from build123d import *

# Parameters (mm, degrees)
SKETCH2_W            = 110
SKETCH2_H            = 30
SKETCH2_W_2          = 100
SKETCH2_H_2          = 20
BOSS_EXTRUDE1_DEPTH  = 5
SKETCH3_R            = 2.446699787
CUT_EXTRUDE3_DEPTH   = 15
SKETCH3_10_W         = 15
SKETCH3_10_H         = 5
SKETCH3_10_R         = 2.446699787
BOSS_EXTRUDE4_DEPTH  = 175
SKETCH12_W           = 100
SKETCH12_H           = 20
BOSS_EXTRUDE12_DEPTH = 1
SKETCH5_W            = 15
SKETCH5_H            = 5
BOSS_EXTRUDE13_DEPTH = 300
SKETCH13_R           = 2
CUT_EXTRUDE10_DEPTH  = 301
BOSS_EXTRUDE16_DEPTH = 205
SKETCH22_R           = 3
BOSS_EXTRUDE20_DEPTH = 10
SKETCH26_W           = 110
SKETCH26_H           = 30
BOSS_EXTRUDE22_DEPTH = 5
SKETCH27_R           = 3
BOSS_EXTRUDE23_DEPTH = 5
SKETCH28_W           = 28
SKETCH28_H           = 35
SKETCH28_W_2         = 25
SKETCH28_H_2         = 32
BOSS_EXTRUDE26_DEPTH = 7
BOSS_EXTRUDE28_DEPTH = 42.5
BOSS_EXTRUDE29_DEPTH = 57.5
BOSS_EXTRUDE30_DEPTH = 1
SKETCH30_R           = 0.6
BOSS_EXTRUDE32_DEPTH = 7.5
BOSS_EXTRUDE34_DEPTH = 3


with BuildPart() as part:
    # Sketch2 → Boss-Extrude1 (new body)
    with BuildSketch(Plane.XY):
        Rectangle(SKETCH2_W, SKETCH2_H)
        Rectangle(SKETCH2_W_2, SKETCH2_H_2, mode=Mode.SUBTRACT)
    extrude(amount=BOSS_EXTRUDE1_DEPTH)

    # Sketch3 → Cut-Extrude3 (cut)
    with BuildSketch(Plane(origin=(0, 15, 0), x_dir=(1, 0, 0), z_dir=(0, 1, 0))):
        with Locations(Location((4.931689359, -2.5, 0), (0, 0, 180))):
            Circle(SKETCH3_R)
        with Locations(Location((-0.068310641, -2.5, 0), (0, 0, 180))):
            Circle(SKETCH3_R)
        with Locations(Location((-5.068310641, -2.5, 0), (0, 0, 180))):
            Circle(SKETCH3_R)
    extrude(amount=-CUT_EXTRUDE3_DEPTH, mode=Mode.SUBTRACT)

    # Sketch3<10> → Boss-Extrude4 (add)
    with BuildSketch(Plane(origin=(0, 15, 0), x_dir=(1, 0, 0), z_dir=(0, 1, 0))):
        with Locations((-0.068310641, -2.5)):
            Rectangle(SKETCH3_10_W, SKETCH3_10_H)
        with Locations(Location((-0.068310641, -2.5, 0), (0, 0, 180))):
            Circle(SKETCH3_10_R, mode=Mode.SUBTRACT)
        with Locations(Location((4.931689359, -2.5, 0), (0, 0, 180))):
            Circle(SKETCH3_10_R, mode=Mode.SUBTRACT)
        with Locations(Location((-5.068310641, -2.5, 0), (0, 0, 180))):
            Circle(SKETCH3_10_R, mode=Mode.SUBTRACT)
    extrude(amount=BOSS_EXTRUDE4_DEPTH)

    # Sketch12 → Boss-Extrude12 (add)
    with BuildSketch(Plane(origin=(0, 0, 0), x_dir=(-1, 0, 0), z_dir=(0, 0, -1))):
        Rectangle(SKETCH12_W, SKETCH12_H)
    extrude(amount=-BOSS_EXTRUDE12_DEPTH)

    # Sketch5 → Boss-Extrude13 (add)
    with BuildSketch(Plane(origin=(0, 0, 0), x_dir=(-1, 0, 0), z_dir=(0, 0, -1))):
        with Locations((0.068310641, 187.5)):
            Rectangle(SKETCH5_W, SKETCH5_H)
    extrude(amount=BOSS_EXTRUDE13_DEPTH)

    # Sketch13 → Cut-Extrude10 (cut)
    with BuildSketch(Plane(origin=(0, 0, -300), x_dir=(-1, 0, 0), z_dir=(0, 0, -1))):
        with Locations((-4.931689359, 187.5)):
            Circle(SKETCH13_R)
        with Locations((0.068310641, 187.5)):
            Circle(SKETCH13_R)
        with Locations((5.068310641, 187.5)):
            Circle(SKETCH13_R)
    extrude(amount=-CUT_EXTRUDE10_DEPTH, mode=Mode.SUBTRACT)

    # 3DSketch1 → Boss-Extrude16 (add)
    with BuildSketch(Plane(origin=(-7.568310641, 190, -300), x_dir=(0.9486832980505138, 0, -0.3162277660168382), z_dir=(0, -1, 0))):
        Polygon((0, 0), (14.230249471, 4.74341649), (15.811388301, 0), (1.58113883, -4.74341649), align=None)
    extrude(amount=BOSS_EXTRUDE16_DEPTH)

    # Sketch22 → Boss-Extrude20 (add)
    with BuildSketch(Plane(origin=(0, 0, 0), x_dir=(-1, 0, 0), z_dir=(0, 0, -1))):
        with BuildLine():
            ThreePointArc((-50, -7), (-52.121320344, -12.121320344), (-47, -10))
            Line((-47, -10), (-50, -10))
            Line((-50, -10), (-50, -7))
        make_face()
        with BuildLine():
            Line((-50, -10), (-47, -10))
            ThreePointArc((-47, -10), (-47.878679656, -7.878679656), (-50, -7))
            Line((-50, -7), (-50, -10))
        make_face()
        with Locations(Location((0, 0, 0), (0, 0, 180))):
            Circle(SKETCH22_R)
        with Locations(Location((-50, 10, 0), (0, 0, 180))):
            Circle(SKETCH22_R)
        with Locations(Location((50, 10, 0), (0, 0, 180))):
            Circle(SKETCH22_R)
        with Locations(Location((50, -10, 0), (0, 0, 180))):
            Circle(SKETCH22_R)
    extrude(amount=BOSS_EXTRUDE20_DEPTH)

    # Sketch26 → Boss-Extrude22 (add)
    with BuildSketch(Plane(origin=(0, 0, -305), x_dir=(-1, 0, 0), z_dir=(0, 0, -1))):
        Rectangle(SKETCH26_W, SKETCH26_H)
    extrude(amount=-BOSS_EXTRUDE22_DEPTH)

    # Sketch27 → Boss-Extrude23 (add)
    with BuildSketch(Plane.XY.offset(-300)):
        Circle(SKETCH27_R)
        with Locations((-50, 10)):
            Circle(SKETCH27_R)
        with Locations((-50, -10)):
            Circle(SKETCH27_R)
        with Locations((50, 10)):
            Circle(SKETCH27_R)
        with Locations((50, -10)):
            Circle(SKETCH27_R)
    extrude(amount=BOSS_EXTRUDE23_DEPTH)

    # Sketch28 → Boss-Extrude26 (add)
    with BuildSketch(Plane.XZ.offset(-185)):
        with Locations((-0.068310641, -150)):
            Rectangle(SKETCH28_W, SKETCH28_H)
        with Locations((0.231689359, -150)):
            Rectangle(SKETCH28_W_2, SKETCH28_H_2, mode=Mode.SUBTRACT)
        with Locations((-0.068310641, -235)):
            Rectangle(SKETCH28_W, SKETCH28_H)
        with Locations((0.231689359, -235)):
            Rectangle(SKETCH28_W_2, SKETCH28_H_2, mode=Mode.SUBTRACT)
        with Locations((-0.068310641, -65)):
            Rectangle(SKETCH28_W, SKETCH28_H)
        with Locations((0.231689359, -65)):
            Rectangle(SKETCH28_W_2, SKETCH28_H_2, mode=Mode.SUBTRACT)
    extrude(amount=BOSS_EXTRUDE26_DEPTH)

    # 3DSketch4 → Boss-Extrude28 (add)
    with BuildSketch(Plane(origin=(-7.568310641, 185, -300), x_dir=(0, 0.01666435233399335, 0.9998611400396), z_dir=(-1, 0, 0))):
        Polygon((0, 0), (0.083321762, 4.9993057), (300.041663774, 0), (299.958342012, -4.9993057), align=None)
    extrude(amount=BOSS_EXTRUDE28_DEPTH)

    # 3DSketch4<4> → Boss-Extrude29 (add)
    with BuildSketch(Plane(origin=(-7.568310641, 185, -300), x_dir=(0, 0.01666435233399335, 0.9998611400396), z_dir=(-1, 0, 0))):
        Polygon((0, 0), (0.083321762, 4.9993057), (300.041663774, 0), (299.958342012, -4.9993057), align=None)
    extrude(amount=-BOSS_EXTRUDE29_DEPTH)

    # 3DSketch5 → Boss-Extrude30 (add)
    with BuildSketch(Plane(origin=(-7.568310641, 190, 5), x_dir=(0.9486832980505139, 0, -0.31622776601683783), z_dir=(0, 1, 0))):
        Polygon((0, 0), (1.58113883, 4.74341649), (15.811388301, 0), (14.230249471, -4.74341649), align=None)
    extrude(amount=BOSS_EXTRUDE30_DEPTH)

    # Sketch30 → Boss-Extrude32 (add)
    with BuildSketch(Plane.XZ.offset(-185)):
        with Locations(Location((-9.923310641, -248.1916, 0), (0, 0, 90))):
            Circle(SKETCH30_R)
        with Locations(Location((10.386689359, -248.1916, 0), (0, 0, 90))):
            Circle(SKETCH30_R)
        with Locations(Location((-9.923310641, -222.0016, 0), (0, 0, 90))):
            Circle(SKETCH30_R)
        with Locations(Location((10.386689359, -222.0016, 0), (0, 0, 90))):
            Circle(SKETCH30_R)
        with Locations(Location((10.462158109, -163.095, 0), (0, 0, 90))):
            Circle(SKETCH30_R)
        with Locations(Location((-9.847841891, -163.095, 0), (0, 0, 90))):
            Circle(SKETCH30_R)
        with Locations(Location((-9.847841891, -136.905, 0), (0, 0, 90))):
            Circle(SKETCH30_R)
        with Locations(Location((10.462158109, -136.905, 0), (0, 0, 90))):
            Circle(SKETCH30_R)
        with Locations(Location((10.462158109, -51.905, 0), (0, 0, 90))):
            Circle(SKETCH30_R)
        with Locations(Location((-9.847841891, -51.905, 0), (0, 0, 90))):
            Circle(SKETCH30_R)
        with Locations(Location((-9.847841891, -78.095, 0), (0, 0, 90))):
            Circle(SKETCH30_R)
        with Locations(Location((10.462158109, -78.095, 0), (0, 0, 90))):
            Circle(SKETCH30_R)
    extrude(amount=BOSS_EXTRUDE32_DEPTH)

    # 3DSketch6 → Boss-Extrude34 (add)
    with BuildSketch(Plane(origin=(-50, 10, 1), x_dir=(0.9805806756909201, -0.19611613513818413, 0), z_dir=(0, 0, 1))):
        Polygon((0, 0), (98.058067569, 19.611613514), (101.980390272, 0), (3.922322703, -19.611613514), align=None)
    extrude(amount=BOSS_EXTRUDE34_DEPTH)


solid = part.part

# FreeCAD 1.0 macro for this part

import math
import FreeCAD as App
import Part
import Sketcher


def add_polygon(sketch, points):
    """Adds a closed chain of lines whose ends are joined by coincident constraints."""
    first, n = sketch.GeometryCount, len(points)
    for a, b in zip(points, points[1:] + points[:1]):
        sketch.addGeometry(Part.LineSegment(App.Vector(*a, 0), App.Vector(*b, 0)), False)
    for i in range(n):
        sketch.addConstraint(Sketcher.Constraint("Coincident", first + i, 2, first + (i + 1) % n, 1))

doc = App.newDocument("Part")
body = doc.addObject("PartDesign::Body", "Body")

sketch1 = body.newObject("Sketcher::SketchObject", "Sketch")
sketch1.AttachmentSupport = (doc.getObject("XY_Plane"), [""])
sketch1.MapMode = "FlatFace"
add_polygon(sketch1, [(-55, 15), (-55, -15), (55, -15), (55, 15)])
add_polygon(sketch1, [(50, -10), (-50, -10), (-50, 10), (50, 10)])
sketch1.addConstraint(Sketcher.Constraint("Vertical", 0))
sketch1.addConstraint(Sketcher.Constraint("Horizontal", 1))
sketch1.addConstraint(Sketcher.Constraint("Vertical", 2))
sketch1.addConstraint(Sketcher.Constraint("Horizontal", 3))
sketch1.addConstraint(Sketcher.Constraint("Horizontal", 4))
sketch1.addConstraint(Sketcher.Constraint("Vertical", 5))
sketch1.addConstraint(Sketcher.Constraint("Horizontal", 6))
sketch1.addConstraint(Sketcher.Constraint("Vertical", 7))
sketch1.addConstraint(Sketcher.Constraint("Symmetric", 0, 2, 2, 2, -1, 1))
sketch1.addConstraint(Sketcher.Constraint("Symmetric", 4, 2, 6, 2, -1, 1))
sketch1.addConstraint(Sketcher.Constraint("DistanceX", 1, 1, 1, 2, 110.0))
sketch1.addConstraint(Sketcher.Constraint("DistanceX", 4, 2, 4, 1, 100.0))
sketch1.addConstraint(Sketcher.Constraint("DistanceY", 0, 2, 0, 1, 30.0))
sketch1.addConstraint(Sketcher.Constraint("DistanceY", 5, 1, 5, 2, 20.0))
pad1 = body.newObject("PartDesign::Pad", "Pad")
pad1.Profile = sketch1
pad1.Length = 5

sketch2 = body.newObject("Sketcher::SketchObject", "Sketch001")
sketch2.AttachmentSupport = (doc.getObject("XZ_Plane"), [""])
sketch2.MapMode = "FlatFace"
sketch2.AttachmentOffset = App.Placement(App.Vector(0, 0, -15), App.Rotation())
sketch2.addGeometry(Part.Circle(App.Vector(4.9, 2.5, 0), App.Vector(0, 0, 1), 2.4), False)
sketch2.addGeometry(Part.Circle(App.Vector(-0.1, 2.5, 0), App.Vector(0, 0, 1), 2.4), False)
sketch2.addGeometry(Part.Circle(App.Vector(-5.1, 2.5, 0), App.Vector(0, 0, 1), 2.4), False)
sketch2.addConstraint(Sketcher.Constraint("Equal", 0, 1))
sketch2.addConstraint(Sketcher.Constraint("Equal", 1, 2))
sketch2.addConstraint(Sketcher.Constraint("Horizontal", 0, 3, 1, 3))
sketch2.addConstraint(Sketcher.Constraint("Horizontal", 1, 3, 2, 3))
sketch2.addConstraint(Sketcher.Constraint("DistanceX", 1, 3, 0, 3, 5.0))
sketch2.addConstraint(Sketcher.Constraint("DistanceX", 2, 3, 1, 3, 5.0))
sketch2.addConstraint(Sketcher.Constraint("Diameter", 0, 4.8934))
sketch2.addConstraint(Sketcher.Constraint("DistanceY", -1, 1, 0, 3, 2.5))
sketch2.addConstraint(Sketcher.Constraint("DistanceX", -1, 1, 0, 3, 4.931689))
pocket1 = body.newObject("PartDesign::Pocket", "Pocket")
pocket1.Profile = sketch2
pocket1.Length = 15
pocket1.Reversed = True

sketch3 = body.newObject("Sketcher::SketchObject", "Sketch002")
sketch3.AttachmentSupport = (doc.getObject("XZ_Plane"), [""])
sketch3.MapMode = "FlatFace"
sketch3.AttachmentOffset = App.Placement(App.Vector(0, 0, -15), App.Rotation())
add_polygon(sketch3, [(-7.6, 0), (-7.6, 5), (7.4, 5), (7.4, 0)])
sketch3.addGeometry(Part.Circle(App.Vector(-5.1, 2.5, 0), App.Vector(0, 0, 1), 2.4), False)
sketch3.addGeometry(Part.Circle(App.Vector(-0.1, 2.5, 0), App.Vector(0, 0, 1), 2.4), False)
sketch3.addGeometry(Part.Circle(App.Vector(4.9, 2.5, 0), App.Vector(0, 0, 1), 2.4), False)
sketch3.addConstraint(Sketcher.Constraint("Vertical", 0))
sketch3.addConstraint(Sketcher.Constraint("Horizontal", 1))
sketch3.addConstraint(Sketcher.Constraint("Vertical", 2))
sketch3.addConstraint(Sketcher.Constraint("Horizontal", 3))
sketch3.addConstraint(Sketcher.Constraint("Equal", 4, 5))
sketch3.addConstraint(Sketcher.Constraint("Equal", 5, 6))
sketch3.addConstraint(Sketcher.Constraint("PointOnObject", 2, 2, -1))
sketch3.addConstraint(Sketcher.Constraint("Horizontal", 4, 3, 5, 3))
sketch3.addConstraint(Sketcher.Constraint("Horizontal", 5, 3, 6, 3))
sketch3.addConstraint(Sketcher.Constraint("DistanceX", 1, 1, 1, 2, 15.0))
sketch3.addConstraint(Sketcher.Constraint("DistanceY", 0, 1, 0, 2, 5.0))
sketch3.addConstraint(Sketcher.Constraint("DistanceX", 4, 3, 5, 3, 5.0))
sketch3.addConstraint(Sketcher.Constraint("DistanceX", 5, 3, 6, 3, 5.0))
sketch3.addConstraint(Sketcher.Constraint("Diameter", 4, 4.8934))
sketch3.addConstraint(Sketcher.Constraint("DistanceY", -1, 1, 4, 3, 2.5))
sketch3.addConstraint(Sketcher.Constraint("DistanceX", 0, 2, 4, 3, 2.5))
sketch3.addConstraint(Sketcher.Constraint("DistanceX", 4, 3, -1, 1, 5.068311))
pad2 = body.newObject("PartDesign::Pad", "Pad001")
pad2.Profile = sketch3
pad2.Length = 175
pad2.Reversed = True

sketch4 = body.newObject("Sketcher::SketchObject", "Sketch003")
sketch4.AttachmentSupport = (doc.getObject("XY_Plane"), [""])
sketch4.MapMode = "FlatFace"
add_polygon(sketch4, [(50, 10), (50, -10), (-50, -10), (-50, 10)])
sketch4.addConstraint(Sketcher.Constraint("Vertical", 0))
sketch4.addConstraint(Sketcher.Constraint("Horizontal", 1))
sketch4.addConstraint(Sketcher.Constraint("Vertical", 2))
sketch4.addConstraint(Sketcher.Constraint("Horizontal", 3))
sketch4.addConstraint(Sketcher.Constraint("Symmetric", 0, 2, 2, 2, -1, 1))
sketch4.addConstraint(Sketcher.Constraint("DistanceX", 1, 2, 1, 1, 100.0))
sketch4.addConstraint(Sketcher.Constraint("DistanceY", 0, 2, 0, 1, 20.0))
pad3 = body.newObject("PartDesign::Pad", "Pad002")
pad3.Profile = sketch4
pad3.Length = 1

sketch5 = body.newObject("Sketcher::SketchObject", "Sketch004")
sketch5.AttachmentSupport = (doc.getObject("XY_Plane"), [""])
sketch5.MapMode = "FlatFace"
add_polygon(sketch5, [(7, 190), (7, 185), (-8, 185), (-8, 190)])
sketch5.addConstraint(Sketcher.Constraint("Vertical", 0))
sketch5.addConstraint(Sketcher.Constraint("Horizontal", 1))
sketch5.addConstraint(Sketcher.Constraint("Vertical", 2))
sketch5.addConstraint(Sketcher.Constraint("Horizontal", 3))
sketch5.addConstraint(Sketcher.Constraint("DistanceX", 1, 2, 1, 1, 15.0))
sketch5.addConstraint(Sketcher.Constraint("DistanceY", 0, 2, 0, 1, 5.0))
sketch5.addConstraint(Sketcher.Constraint("DistanceY", -1, 1, 0, 2, 185.0))
sketch5.addConstraint(Sketcher.Constraint("DistanceX", -1, 1, 0, 2, 7.431689))
pad4 = body.newObject("PartDesign::Pad", "Pad003")
pad4.Profile = sketch5
pad4.Length = 300
pad4.Reversed = True

sketch6 = body.newObject("Sketcher::SketchObject", "Sketch005")
sketch6.AttachmentSupport = (doc.getObject("XY_Plane"), [""])
sketch6.MapMode = "FlatFace"
sketch6.AttachmentOffset = App.Placement(App.Vector(0, 0, -300), App.Rotation())
sketch6.addGeometry(Part.Circle(App.Vector(4.9, 187.5, 0), App.Vector(0, 0, 1), 2), False)
sketch6.addGeometry(Part.Circle(App.Vector(-0.1, 187.5, 0), App.Vector(0, 0, 1), 2), False)
sketch6.addGeometry(Part.Circle(App.Vector(-5.1, 187.5, 0), App.Vector(0, 0, 1), 2), False)
sketch6.addConstraint(Sketcher.Constraint("Equal", 0, 1))
sketch6.addConstraint(Sketcher.Constraint("Equal", 1, 2))
sketch6.addConstraint(Sketcher.Constraint("Horizontal", 0, 3, 1, 3))
sketch6.addConstraint(Sketcher.Constraint("Horizontal", 1, 3, 2, 3))
sketch6.addConstraint(Sketcher.Constraint("Diameter", 0, 4.0))
sketch6.addConstraint(Sketcher.Constraint("DistanceX", 1, 3, 0, 3, 5.0))
sketch6.addConstraint(Sketcher.Constraint("DistanceX", 2, 3, 1, 3, 5.0))
sketch6.addConstraint(Sketcher.Constraint("DistanceY", -1, 1, 0, 3, 187.5))
sketch6.addConstraint(Sketcher.Constraint("DistanceX", -1, 1, 0, 3, 4.931689))
pocket2 = body.newObject("PartDesign::Pocket", "Pocket001")
pocket2.Profile = sketch6
pocket2.Length = 301
pocket2.Reversed = True

sketch7 = body.newObject("Sketcher::SketchObject", "Sketch006")
sketch7.AttachmentSupport = (doc.getObject("XZ_Plane"), [""])
sketch7.MapMode = "FlatFace"
sketch7.AttachmentOffset = App.Placement(App.Vector(0, 0, -190), App.Rotation())
add_polygon(sketch7, [(7.4, -300), (-7.6, -300), (-7.6, -305), (7.4, -305)])
sketch7.addConstraint(Sketcher.Constraint("Horizontal", 0))
sketch7.addConstraint(Sketcher.Constraint("Vertical", 1))
sketch7.addConstraint(Sketcher.Constraint("Horizontal", 2))
sketch7.addConstraint(Sketcher.Constraint("Vertical", 3))
sketch7.addConstraint(Sketcher.Constraint("DistanceX", 0, 2, 0, 1, 15.0))
sketch7.addConstraint(Sketcher.Constraint("DistanceY", 1, 2, 1, 1, 5.0))
sketch7.addConstraint(Sketcher.Constraint("DistanceY", 0, 2, -1, 1, 300.0))
sketch7.addConstraint(Sketcher.Constraint("DistanceX", 0, 2, -1, 1, 7.568311))
pad5 = body.newObject("PartDesign::Pad", "Pad004")
pad5.Profile = sketch7
pad5.Length = 205

sketch8 = body.newObject("Sketcher::SketchObject", "Sketch007")
sketch8.AttachmentSupport = (doc.getObject("XY_Plane"), [""])
sketch8.MapMode = "FlatFace"
sketch8.addGeometry(Part.ArcOfCircle(Part.Circle(App.Vector(50, -10, 0), App.Vector(0, 0, 1), 3), math.radians(180), math.radians(450)), False)
sketch8.addGeometry(Part.ArcOfCircle(Part.Circle(App.Vector(50, -10, 0), App.Vector(0, 0, 1), 3), math.radians(90), math.radians(180)), False)
sketch8.addGeometry(Part.Circle(App.Vector(0, 0, 0), App.Vector(0, 0, 1), 3), False)
sketch8.addGeometry(Part.Circle(App.Vector(50, 10, 0), App.Vector(0, 0, 1), 3), False)
sketch8.addGeometry(Part.Circle(App.Vector(-50, 10, 0), App.Vector(0, 0, 1), 3), False)
sketch8.addGeometry(Part.Circle(App.Vector(-50, -10, 0), App.Vector(0, 0, 1), 3), False)
sketch8.addConstraint(Sketcher.Constraint("Tangent", 0, 1, 1, 2))
sketch8.addConstraint(Sketcher.Constraint("Coincident", 1, 1, 0, 2))
sketch8.addConstraint(Sketcher.Constraint("Coincident", 2, 3, -1, 1))
sketch8.addConstraint(Sketcher.Constraint("Equal", 1, 2))
sketch8.addConstraint(Sketcher.Constraint("Equal", 2, 3))
sketch8.addConstraint(Sketcher.Constraint("Equal", 3, 4))
sketch8.addConstraint(Sketcher.Constraint("Equal", 4, 5))
sketch8.addConstraint(Sketcher.Constraint("Symmetric", 0, 3, 4, 3, -1, 1))
sketch8.addConstraint(Sketcher.Constraint("Symmetric", 3, 3, 5, 3, -1, 1))
sketch8.addConstraint(Sketcher.Constraint("Symmetric", 3, 3, 4, 3, -2))
sketch8.addConstraint(Sketcher.Constraint("Horizontal", 5, 3, 0, 1))
sketch8.addConstraint(Sketcher.Constraint("Vertical", 3, 3, 1, 1))
sketch8.addConstraint(Sketcher.Constraint("Diameter", 2, 6.0))
sketch8.addConstraint(Sketcher.Constraint("DistanceX", -1, 1, 0, 3, 50.0))
sketch8.addConstraint(Sketcher.Constraint("DistanceY", 0, 3, -1, 1, 10.0))
pad6 = body.newObject("PartDesign::Pad", "Pad005")
pad6.Profile = sketch8
pad6.Length = 10
pad6.Reversed = True

sketch9 = body.newObject("Sketcher::SketchObject", "Sketch008")
sketch9.AttachmentSupport = (doc.getObject("XY_Plane"), [""])
sketch9.MapMode = "FlatFace"
sketch9.AttachmentOffset = App.Placement(App.Vector(0, 0, -305), App.Rotation())
add_polygon(sketch9, [(55, 15), (55, -15), (-55, -15), (-55, 15)])
sketch9.addConstraint(Sketcher.Constraint("Vertical", 0))
sketch9.addConstraint(Sketcher.Constraint("Horizontal", 1))
sketch9.addConstraint(Sketcher.Constraint("Vertical", 2))
sketch9.addConstraint(Sketcher.Constraint("Horizontal", 3))
sketch9.addConstraint(Sketcher.Constraint("Symmetric", 0, 2, 2, 2, -1, 1))
sketch9.addConstraint(Sketcher.Constraint("DistanceX", 1, 2, 1, 1, 110.0))
sketch9.addConstraint(Sketcher.Constraint("DistanceY", 0, 2, 0, 1, 30.0))
pad7 = body.newObject("PartDesign::Pad", "Pad006")
pad7.Profile = sketch9
pad7.Length = 5

sketch10 = body.newObject("Sketcher::SketchObject", "Sketch009")
sketch10.AttachmentSupport = (doc.getObject("XY_Plane"), [""])
sketch10.MapMode = "FlatFace"
sketch10.AttachmentOffset = App.Placement(App.Vector(0, 0, -300), App.Rotation())
sketch10.addGeometry(Part.Circle(App.Vector(0, 0, 0), App.Vector(0, 0, 1), 3), False)
sketch10.addGeometry(Part.Circle(App.Vector(-50, 10, 0), App.Vector(0, 0, 1), 3), False)
sketch10.addGeometry(Part.Circle(App.Vector(-50, -10, 0), App.Vector(0, 0, 1), 3), False)
sketch10.addGeometry(Part.Circle(App.Vector(50, 10, 0), App.Vector(0, 0, 1), 3), False)
sketch10.addGeometry(Part.Circle(App.Vector(50, -10, 0), App.Vector(0, 0, 1), 3), False)
sketch10.addConstraint(Sketcher.Constraint("Coincident", 0, 3, -1, 1))
sketch10.addConstraint(Sketcher.Constraint("Equal", 0, 1))
sketch10.addConstraint(Sketcher.Constraint("Equal", 1, 2))
sketch10.addConstraint(Sketcher.Constraint("Equal", 2, 3))
sketch10.addConstraint(Sketcher.Constraint("Equal", 3, 4))
sketch10.addConstraint(Sketcher.Constraint("Symmetric", 2, 3, 3, 3, -1, 1))
sketch10.addConstraint(Sketcher.Constraint("Symmetric", 1, 3, 4, 3, -1, 1))
sketch10.addConstraint(Sketcher.Constraint("Symmetric", 1, 3, 3, 3, -2))
sketch10.addConstraint(Sketcher.Constraint("Diameter", 0, 6.0))
sketch10.addConstraint(Sketcher.Constraint("DistanceX", 1, 3, -1, 1, 50.0))
sketch10.addConstraint(Sketcher.Constraint("DistanceY", -1, 1, 1, 3, 10.0))
pad8 = body.newObject("PartDesign::Pad", "Pad007")
pad8.Profile = sketch10
pad8.Length = 5

sketch11 = body.newObject("Sketcher::SketchObject", "Sketch010")
sketch11.AttachmentSupport = (doc.getObject("XZ_Plane"), [""])
sketch11.MapMode = "FlatFace"
sketch11.AttachmentOffset = App.Placement(App.Vector(0, 0, -185), App.Rotation())
add_polygon(sketch11, [(-14, -132), (-14, -168), (14, -168), (14, -132)])
add_polygon(sketch11, [(13, -166), (-12, -166), (-12, -134), (13, -134)])
add_polygon(sketch11, [(-14, -218), (-14, -252), (14, -252), (14, -218)])
add_polygon(sketch11, [(13, -251), (-12, -251), (-12, -219), (13, -219)])
add_polygon(sketch11, [(-14, -48), (-14, -82), (14, -82), (14, -48)])
add_polygon(sketch11, [(13, -81), (-12, -81), (-12, -49), (13, -49)])
sketch11.addConstraint(Sketcher.Constraint("Vertical", 0))
sketch11.addConstraint(Sketcher.Constraint("Horizontal", 1))
sketch11.addConstraint(Sketcher.Constraint("Vertical", 2))
sketch11.addConstraint(Sketcher.Constraint("Horizontal", 3))
sketch11.addConstraint(Sketcher.Constraint("Horizontal", 4))
sketch11.addConstraint(Sketcher.Constraint("Vertical", 5))
sketch11.addConstraint(Sketcher.Constraint("Horizontal", 6))
sketch11.addConstraint(Sketcher.Constraint("Vertical", 7))
sketch11.addConstraint(Sketcher.Constraint("Vertical", 8))
sketch11.addConstraint(Sketcher.Constraint("Horizontal", 9))
sketch11.addConstraint(Sketcher.Constraint("Vertical", 10))
sketch11.addConstraint(Sketcher.Constraint("Horizontal", 11))
sketch11.addConstraint(Sketcher.Constraint("Horizontal", 12))
sketch11.addConstraint(Sketcher.Constraint("Vertical", 13))
sketch11.addConstraint(Sketcher.Constraint("Horizontal", 14))
sketch11.addConstraint(Sketcher.Constraint("Vertical", 15))
sketch11.addConstraint(Sketcher.Constraint("Vertical", 16))
sketch11.addConstraint(Sketcher.Constraint("Horizontal", 17))
sketch11.addConstraint(Sketcher.Constraint("Vertical", 18))
sketch11.addConstraint(Sketcher.Constraint("Horizontal", 19))
sketch11.addConstraint(Sketcher.Constraint("Horizontal", 20))
sketch11.addConstraint(Sketcher.Constraint("Vertical", 21))
sketch11.addConstraint(Sketcher.Constraint("Horizontal", 22))
sketch11.addConstraint(Sketcher.Constraint("Vertical", 23))
sketch11.addConstraint(Sketcher.Constraint("Vertical", 3, 2, 8, 2))
sketch11.addConstraint(Sketcher.Constraint("Vertical", 2, 2, 9, 2))
sketch11.addConstraint(Sketcher.Constraint("Vertical", 5, 2, 12, 2))
sketch11.addConstraint(Sketcher.Constraint("Vertical", 7, 2, 14, 2))
sketch11.addConstraint(Sketcher.Constraint("Vertical", 11, 2, 16, 2))
sketch11.addConstraint(Sketcher.Constraint("Vertical", 10, 2, 17, 2))
sketch11.addConstraint(Sketcher.Constraint("Vertical", 13, 2, 20, 2))
sketch11.addConstraint(Sketcher.Constraint("Vertical", 15, 2, 22, 2))
sketch11.addConstraint(Sketcher.Constraint("Equal", 2, 8))
sketch11.addConstraint(Sketcher.Constraint("Equal", 7, 13))
sketch11.addConstraint(Sketcher.Constraint("Equal", 10, 16))
sketch11.addConstraint(Sketcher.Constraint("Equal", 15, 21))
sketch11.addConstraint(Sketcher.Constraint("DistanceX", 1, 1, 1, 2, 28.0))
sketch11.addConstraint(Sketcher.Constraint("DistanceX", 4, 2, 4, 1, 25.0))
sketch11.addConstraint(Sketcher.Constraint("DistanceY", 0, 2, 0, 1, 35.0))
sketch11.addConstraint(Sketcher.Constraint("DistanceY", 5, 1, 5, 2, 32.0))
sketch11.addConstraint(Sketcher.Constraint("DistanceY", 4, 2, -1, 1, 166.0))
sketch11.addConstraint(Sketcher.Constraint("DistanceY", 12, 2, -1, 1, 251.0))
sketch11.addConstraint(Sketcher.Constraint("DistanceY", 20, 2, -1, 1, 81.0))
sketch11.addConstraint(Sketcher.Constraint("DistanceY", 8, 2, 0, 2, 85.0))
sketch11.addConstraint(Sketcher.Constraint("DistanceY", 3, 2, 16, 2, 50.0))
sketch11.addConstraint(Sketcher.Constraint("DistanceY", 0, 2, -1, 1, 167.5))
sketch11.addConstraint(Sketcher.Constraint("DistanceX", 0, 2, 4, 2, 1.8))
sketch11.addConstraint(Sketcher.Constraint("DistanceX", 0, 2, -1, 1, 14.068311))
pad9 = body.newObject("PartDesign::Pad", "Pad008")
pad9.Profile = sketch11
pad9.Length = 7

sketch12 = body.newObject("Sketcher::SketchObject", "Sketch011")
sketch12.AttachmentSupport = (doc.getObject("YZ_Plane"), [""])
sketch12.MapMode = "FlatFace"
sketch12.AttachmentOffset = App.Placement(App.Vector(0, 0, -7.568311), App.Rotation())
add_polygon(sketch12, [(190, -300), (185, -300), (185, 0), (190, 0)])
sketch12.addConstraint(Sketcher.Constraint("Horizontal", 0))
sketch12.addConstraint(Sketcher.Constraint("Vertical", 1))
sketch12.addConstraint(Sketcher.Constraint("Horizontal", 2))
sketch12.addConstraint(Sketcher.Constraint("Vertical", 3))
sketch12.addConstraint(Sketcher.Constraint("PointOnObject", 1, 2, -1))
sketch12.addConstraint(Sketcher.Constraint("DistanceX", 0, 2, 0, 1, 5.0))
sketch12.addConstraint(Sketcher.Constraint("DistanceY", 1, 1, 1, 2, 300.0))
sketch12.addConstraint(Sketcher.Constraint("DistanceX", -1, 1, 0, 2, 185.0))
pad10 = body.newObject("PartDesign::Pad", "Pad009")
pad10.Profile = sketch12
pad10.Length = 42.5
pad10.Reversed = True

sketch13 = body.newObject("Sketcher::SketchObject", "Sketch012")
sketch13.AttachmentSupport = (doc.getObject("YZ_Plane"), [""])
sketch13.MapMode = "FlatFace"
sketch13.AttachmentOffset = App.Placement(App.Vector(0, 0, -7.568311), App.Rotation())
add_polygon(sketch13, [(190, -300), (185, -300), (185, 0), (190, 0)])
sketch13.addConstraint(Sketcher.Constraint("Horizontal", 0))
sketch13.addConstraint(Sketcher.Constraint("Vertical", 1))
sketch13.addConstraint(Sketcher.Constraint("Horizontal", 2))
sketch13.addConstraint(Sketcher.Constraint("Vertical", 3))
sketch13.addConstraint(Sketcher.Constraint("PointOnObject", 1, 2, -1))
sketch13.addConstraint(Sketcher.Constraint("DistanceX", 0, 2, 0, 1, 5.0))
sketch13.addConstraint(Sketcher.Constraint("DistanceY", 1, 1, 1, 2, 300.0))
sketch13.addConstraint(Sketcher.Constraint("DistanceX", -1, 1, 0, 2, 185.0))
pad11 = body.newObject("PartDesign::Pad", "Pad010")
pad11.Profile = sketch13
pad11.Length = 57.5

sketch14 = body.newObject("Sketcher::SketchObject", "Sketch013")
sketch14.AttachmentSupport = (doc.getObject("XZ_Plane"), [""])
sketch14.MapMode = "FlatFace"
sketch14.AttachmentOffset = App.Placement(App.Vector(0, 0, -190), App.Rotation())
add_polygon(sketch14, [(-7.6, 0), (-7.6, 5), (7.4, 5), (7.4, 0)])
sketch14.addConstraint(Sketcher.Constraint("Vertical", 0))
sketch14.addConstraint(Sketcher.Constraint("Horizontal", 1))
sketch14.addConstraint(Sketcher.Constraint("Vertical", 2))
sketch14.addConstraint(Sketcher.Constraint("Horizontal", 3))
sketch14.addConstraint(Sketcher.Constraint("PointOnObject", 2, 2, -1))
sketch14.addConstraint(Sketcher.Constraint("DistanceX", 1, 1, 1, 2, 15.0))
sketch14.addConstraint(Sketcher.Constraint("DistanceY", 0, 1, 0, 2, 5.0))
sketch14.addConstraint(Sketcher.Constraint("DistanceX", 0, 2, -1, 1, 7.568311))
pad12 = body.newObject("PartDesign::Pad", "Pad011")
pad12.Profile = sketch14
pad12.Length = 1
pad12.Reversed = True

sketch15 = body.newObject("Sketcher::SketchObject", "Sketch014")
sketch15.AttachmentSupport = (doc.getObject("XZ_Plane"), [""])
sketch15.MapMode = "FlatFace"
sketch15.AttachmentOffset = App.Placement(App.Vector(0, 0, -185), App.Rotation())
sketch15.addGeometry(Part.Circle(App.Vector(-9.9, -248.2, 0), App.Vector(0, 0, 1), 0.6), False)
sketch15.addGeometry(Part.Circle(App.Vector(10.4, -248.2, 0), App.Vector(0, 0, 1), 0.6), False)
sketch15.addGeometry(Part.Circle(App.Vector(-9.9, -222, 0), App.Vector(0, 0, 1), 0.6), False)
sketch15.addGeometry(Part.Circle(App.Vector(10.4, -222, 0), App.Vector(0, 0, 1), 0.6), False)
sketch15.addGeometry(Part.Circle(App.Vector(10.5, -163.1, 0), App.Vector(0, 0, 1), 0.6), False)
sketch15.addGeometry(Part.Circle(App.Vector(-9.8, -163.1, 0), App.Vector(0, 0, 1), 0.6), False)
sketch15.addGeometry(Part.Circle(App.Vector(-9.8, -136.9, 0), App.Vector(0, 0, 1), 0.6), False)
sketch15.addGeometry(Part.Circle(App.Vector(10.5, -136.9, 0), App.Vector(0, 0, 1), 0.6), False)
sketch15.addGeometry(Part.Circle(App.Vector(10.5, -51.9, 0), App.Vector(0, 0, 1), 0.6), False)
sketch15.addGeometry(Part.Circle(App.Vector(-9.8, -51.9, 0), App.Vector(0, 0, 1), 0.6), False)
sketch15.addGeometry(Part.Circle(App.Vector(-9.8, -78.1, 0), App.Vector(0, 0, 1), 0.6), False)
sketch15.addGeometry(Part.Circle(App.Vector(10.5, -78.1, 0), App.Vector(0, 0, 1), 0.6), False)
sketch15.addConstraint(Sketcher.Constraint("Equal", 0, 1))
sketch15.addConstraint(Sketcher.Constraint("Equal", 1, 2))
sketch15.addConstraint(Sketcher.Constraint("Equal", 2, 3))
sketch15.addConstraint(Sketcher.Constraint("Equal", 3, 4))
sketch15.addConstraint(Sketcher.Constraint("Equal", 4, 5))
sketch15.addConstraint(Sketcher.Constraint("Equal", 5, 6))
sketch15.addConstraint(Sketcher.Constraint("Equal", 6, 7))
sketch15.addConstraint(Sketcher.Constraint("Equal", 7, 8))
sketch15.addConstraint(Sketcher.Constraint("Equal", 8, 9))
sketch15.addConstraint(Sketcher.Constraint("Equal", 9, 10))
sketch15.addConstraint(Sketcher.Constraint("Equal", 10, 11))
sketch15.addConstraint(Sketcher.Constraint("Horizontal", 0, 3, 1, 3))
sketch15.addConstraint(Sketcher.Constraint("Horizontal", 2, 3, 3, 3))
sketch15.addConstraint(Sketcher.Constraint("Horizontal", 4, 3, 5, 3))
sketch15.addConstraint(Sketcher.Constraint("Horizontal", 6, 3, 7, 3))
sketch15.addConstraint(Sketcher.Constraint("Horizontal", 8, 3, 9, 3))
sketch15.addConstraint(Sketcher.Constraint("Horizontal", 10, 3, 11, 3))
sketch15.addConstraint(Sketcher.Constraint("Vertical", 0, 3, 2, 3))
sketch15.addConstraint(Sketcher.Constraint("Vertical", 1, 3, 3, 3))
sketch15.addConstraint(Sketcher.Constraint("Vertical", 5, 3, 6, 3))
sketch15.addConstraint(Sketcher.Constraint("Vertical", 4, 3, 7, 3))
sketch15.addConstraint(Sketcher.Constraint("Vertical", 7, 3, 8, 3))
sketch15.addConstraint(Sketcher.Constraint("Vertical", 6, 3, 9, 3))
sketch15.addConstraint(Sketcher.Constraint("Vertical", 9, 3, 10, 3))
sketch15.addConstraint(Sketcher.Constraint("Vertical", 8, 3, 11, 3))
sketch15.addConstraint(Sketcher.Constraint("Diameter", 0, 1.2))
sketch15.addConstraint(Sketcher.Constraint("DistanceY", 7, 3, 8, 3, 85.0))
sketch15.addConstraint(Sketcher.Constraint("DistanceY", 5, 3, 10, 3, 85.0))
sketch15.addConstraint(Sketcher.Constraint("DistanceX", 0, 3, 1, 3, 20.31))
sketch15.addConstraint(Sketcher.Constraint("DistanceY", 0, 3, 2, 3, 26.19))
sketch15.addConstraint(Sketcher.Constraint("DistanceX", 5, 3, 4, 3, 20.31))
sketch15.addConstraint(Sketcher.Constraint("DistanceY", 5, 3, 6, 3, 26.19))
sketch15.addConstraint(Sketcher.Constraint("DistanceY", 4, 3, -1, 1, 163.095))
sketch15.addConstraint(Sketcher.Constraint("DistanceY", 0, 3, -1, 1, 248.1916))
sketch15.addConstraint(Sketcher.Constraint("DistanceX", 0, 3, -1, 1, 9.923311))
sketch15.addConstraint(Sketcher.Constraint("DistanceX", -1, 1, 4, 3, 10.462158))
pad13 = body.newObject("PartDesign::Pad", "Pad012")
pad13.Profile = sketch15
pad13.Length = 7.5

sketch16 = body.newObject("Sketcher::SketchObject", "Sketch015")
sketch16.AttachmentSupport = (doc.getObject("XY_Plane"), [""])
sketch16.MapMode = "FlatFace"
sketch16.AttachmentOffset = App.Placement(App.Vector(0, 0, 1), App.Rotation())
add_polygon(sketch16, [(50, 10), (-50, 10), (-50, -10), (50, -10)])
sketch16.addConstraint(Sketcher.Constraint("Horizontal", 0))
sketch16.addConstraint(Sketcher.Constraint("Vertical", 1))
sketch16.addConstraint(Sketcher.Constraint("Horizontal", 2))
sketch16.addConstraint(Sketcher.Constraint("Vertical", 3))
sketch16.addConstraint(Sketcher.Constraint("Symmetric", 0, 2, 2, 2, -1, 1))
sketch16.addConstraint(Sketcher.Constraint("DistanceX", 0, 2, 0, 1, 100.0))
sketch16.addConstraint(Sketcher.Constraint("DistanceY", 1, 2, 1, 1, 20.0))
pad14 = body.newObject("PartDesign::Pad", "Pad013")
pad14.Profile = sketch16
pad14.Length = 3

doc.recompute()
